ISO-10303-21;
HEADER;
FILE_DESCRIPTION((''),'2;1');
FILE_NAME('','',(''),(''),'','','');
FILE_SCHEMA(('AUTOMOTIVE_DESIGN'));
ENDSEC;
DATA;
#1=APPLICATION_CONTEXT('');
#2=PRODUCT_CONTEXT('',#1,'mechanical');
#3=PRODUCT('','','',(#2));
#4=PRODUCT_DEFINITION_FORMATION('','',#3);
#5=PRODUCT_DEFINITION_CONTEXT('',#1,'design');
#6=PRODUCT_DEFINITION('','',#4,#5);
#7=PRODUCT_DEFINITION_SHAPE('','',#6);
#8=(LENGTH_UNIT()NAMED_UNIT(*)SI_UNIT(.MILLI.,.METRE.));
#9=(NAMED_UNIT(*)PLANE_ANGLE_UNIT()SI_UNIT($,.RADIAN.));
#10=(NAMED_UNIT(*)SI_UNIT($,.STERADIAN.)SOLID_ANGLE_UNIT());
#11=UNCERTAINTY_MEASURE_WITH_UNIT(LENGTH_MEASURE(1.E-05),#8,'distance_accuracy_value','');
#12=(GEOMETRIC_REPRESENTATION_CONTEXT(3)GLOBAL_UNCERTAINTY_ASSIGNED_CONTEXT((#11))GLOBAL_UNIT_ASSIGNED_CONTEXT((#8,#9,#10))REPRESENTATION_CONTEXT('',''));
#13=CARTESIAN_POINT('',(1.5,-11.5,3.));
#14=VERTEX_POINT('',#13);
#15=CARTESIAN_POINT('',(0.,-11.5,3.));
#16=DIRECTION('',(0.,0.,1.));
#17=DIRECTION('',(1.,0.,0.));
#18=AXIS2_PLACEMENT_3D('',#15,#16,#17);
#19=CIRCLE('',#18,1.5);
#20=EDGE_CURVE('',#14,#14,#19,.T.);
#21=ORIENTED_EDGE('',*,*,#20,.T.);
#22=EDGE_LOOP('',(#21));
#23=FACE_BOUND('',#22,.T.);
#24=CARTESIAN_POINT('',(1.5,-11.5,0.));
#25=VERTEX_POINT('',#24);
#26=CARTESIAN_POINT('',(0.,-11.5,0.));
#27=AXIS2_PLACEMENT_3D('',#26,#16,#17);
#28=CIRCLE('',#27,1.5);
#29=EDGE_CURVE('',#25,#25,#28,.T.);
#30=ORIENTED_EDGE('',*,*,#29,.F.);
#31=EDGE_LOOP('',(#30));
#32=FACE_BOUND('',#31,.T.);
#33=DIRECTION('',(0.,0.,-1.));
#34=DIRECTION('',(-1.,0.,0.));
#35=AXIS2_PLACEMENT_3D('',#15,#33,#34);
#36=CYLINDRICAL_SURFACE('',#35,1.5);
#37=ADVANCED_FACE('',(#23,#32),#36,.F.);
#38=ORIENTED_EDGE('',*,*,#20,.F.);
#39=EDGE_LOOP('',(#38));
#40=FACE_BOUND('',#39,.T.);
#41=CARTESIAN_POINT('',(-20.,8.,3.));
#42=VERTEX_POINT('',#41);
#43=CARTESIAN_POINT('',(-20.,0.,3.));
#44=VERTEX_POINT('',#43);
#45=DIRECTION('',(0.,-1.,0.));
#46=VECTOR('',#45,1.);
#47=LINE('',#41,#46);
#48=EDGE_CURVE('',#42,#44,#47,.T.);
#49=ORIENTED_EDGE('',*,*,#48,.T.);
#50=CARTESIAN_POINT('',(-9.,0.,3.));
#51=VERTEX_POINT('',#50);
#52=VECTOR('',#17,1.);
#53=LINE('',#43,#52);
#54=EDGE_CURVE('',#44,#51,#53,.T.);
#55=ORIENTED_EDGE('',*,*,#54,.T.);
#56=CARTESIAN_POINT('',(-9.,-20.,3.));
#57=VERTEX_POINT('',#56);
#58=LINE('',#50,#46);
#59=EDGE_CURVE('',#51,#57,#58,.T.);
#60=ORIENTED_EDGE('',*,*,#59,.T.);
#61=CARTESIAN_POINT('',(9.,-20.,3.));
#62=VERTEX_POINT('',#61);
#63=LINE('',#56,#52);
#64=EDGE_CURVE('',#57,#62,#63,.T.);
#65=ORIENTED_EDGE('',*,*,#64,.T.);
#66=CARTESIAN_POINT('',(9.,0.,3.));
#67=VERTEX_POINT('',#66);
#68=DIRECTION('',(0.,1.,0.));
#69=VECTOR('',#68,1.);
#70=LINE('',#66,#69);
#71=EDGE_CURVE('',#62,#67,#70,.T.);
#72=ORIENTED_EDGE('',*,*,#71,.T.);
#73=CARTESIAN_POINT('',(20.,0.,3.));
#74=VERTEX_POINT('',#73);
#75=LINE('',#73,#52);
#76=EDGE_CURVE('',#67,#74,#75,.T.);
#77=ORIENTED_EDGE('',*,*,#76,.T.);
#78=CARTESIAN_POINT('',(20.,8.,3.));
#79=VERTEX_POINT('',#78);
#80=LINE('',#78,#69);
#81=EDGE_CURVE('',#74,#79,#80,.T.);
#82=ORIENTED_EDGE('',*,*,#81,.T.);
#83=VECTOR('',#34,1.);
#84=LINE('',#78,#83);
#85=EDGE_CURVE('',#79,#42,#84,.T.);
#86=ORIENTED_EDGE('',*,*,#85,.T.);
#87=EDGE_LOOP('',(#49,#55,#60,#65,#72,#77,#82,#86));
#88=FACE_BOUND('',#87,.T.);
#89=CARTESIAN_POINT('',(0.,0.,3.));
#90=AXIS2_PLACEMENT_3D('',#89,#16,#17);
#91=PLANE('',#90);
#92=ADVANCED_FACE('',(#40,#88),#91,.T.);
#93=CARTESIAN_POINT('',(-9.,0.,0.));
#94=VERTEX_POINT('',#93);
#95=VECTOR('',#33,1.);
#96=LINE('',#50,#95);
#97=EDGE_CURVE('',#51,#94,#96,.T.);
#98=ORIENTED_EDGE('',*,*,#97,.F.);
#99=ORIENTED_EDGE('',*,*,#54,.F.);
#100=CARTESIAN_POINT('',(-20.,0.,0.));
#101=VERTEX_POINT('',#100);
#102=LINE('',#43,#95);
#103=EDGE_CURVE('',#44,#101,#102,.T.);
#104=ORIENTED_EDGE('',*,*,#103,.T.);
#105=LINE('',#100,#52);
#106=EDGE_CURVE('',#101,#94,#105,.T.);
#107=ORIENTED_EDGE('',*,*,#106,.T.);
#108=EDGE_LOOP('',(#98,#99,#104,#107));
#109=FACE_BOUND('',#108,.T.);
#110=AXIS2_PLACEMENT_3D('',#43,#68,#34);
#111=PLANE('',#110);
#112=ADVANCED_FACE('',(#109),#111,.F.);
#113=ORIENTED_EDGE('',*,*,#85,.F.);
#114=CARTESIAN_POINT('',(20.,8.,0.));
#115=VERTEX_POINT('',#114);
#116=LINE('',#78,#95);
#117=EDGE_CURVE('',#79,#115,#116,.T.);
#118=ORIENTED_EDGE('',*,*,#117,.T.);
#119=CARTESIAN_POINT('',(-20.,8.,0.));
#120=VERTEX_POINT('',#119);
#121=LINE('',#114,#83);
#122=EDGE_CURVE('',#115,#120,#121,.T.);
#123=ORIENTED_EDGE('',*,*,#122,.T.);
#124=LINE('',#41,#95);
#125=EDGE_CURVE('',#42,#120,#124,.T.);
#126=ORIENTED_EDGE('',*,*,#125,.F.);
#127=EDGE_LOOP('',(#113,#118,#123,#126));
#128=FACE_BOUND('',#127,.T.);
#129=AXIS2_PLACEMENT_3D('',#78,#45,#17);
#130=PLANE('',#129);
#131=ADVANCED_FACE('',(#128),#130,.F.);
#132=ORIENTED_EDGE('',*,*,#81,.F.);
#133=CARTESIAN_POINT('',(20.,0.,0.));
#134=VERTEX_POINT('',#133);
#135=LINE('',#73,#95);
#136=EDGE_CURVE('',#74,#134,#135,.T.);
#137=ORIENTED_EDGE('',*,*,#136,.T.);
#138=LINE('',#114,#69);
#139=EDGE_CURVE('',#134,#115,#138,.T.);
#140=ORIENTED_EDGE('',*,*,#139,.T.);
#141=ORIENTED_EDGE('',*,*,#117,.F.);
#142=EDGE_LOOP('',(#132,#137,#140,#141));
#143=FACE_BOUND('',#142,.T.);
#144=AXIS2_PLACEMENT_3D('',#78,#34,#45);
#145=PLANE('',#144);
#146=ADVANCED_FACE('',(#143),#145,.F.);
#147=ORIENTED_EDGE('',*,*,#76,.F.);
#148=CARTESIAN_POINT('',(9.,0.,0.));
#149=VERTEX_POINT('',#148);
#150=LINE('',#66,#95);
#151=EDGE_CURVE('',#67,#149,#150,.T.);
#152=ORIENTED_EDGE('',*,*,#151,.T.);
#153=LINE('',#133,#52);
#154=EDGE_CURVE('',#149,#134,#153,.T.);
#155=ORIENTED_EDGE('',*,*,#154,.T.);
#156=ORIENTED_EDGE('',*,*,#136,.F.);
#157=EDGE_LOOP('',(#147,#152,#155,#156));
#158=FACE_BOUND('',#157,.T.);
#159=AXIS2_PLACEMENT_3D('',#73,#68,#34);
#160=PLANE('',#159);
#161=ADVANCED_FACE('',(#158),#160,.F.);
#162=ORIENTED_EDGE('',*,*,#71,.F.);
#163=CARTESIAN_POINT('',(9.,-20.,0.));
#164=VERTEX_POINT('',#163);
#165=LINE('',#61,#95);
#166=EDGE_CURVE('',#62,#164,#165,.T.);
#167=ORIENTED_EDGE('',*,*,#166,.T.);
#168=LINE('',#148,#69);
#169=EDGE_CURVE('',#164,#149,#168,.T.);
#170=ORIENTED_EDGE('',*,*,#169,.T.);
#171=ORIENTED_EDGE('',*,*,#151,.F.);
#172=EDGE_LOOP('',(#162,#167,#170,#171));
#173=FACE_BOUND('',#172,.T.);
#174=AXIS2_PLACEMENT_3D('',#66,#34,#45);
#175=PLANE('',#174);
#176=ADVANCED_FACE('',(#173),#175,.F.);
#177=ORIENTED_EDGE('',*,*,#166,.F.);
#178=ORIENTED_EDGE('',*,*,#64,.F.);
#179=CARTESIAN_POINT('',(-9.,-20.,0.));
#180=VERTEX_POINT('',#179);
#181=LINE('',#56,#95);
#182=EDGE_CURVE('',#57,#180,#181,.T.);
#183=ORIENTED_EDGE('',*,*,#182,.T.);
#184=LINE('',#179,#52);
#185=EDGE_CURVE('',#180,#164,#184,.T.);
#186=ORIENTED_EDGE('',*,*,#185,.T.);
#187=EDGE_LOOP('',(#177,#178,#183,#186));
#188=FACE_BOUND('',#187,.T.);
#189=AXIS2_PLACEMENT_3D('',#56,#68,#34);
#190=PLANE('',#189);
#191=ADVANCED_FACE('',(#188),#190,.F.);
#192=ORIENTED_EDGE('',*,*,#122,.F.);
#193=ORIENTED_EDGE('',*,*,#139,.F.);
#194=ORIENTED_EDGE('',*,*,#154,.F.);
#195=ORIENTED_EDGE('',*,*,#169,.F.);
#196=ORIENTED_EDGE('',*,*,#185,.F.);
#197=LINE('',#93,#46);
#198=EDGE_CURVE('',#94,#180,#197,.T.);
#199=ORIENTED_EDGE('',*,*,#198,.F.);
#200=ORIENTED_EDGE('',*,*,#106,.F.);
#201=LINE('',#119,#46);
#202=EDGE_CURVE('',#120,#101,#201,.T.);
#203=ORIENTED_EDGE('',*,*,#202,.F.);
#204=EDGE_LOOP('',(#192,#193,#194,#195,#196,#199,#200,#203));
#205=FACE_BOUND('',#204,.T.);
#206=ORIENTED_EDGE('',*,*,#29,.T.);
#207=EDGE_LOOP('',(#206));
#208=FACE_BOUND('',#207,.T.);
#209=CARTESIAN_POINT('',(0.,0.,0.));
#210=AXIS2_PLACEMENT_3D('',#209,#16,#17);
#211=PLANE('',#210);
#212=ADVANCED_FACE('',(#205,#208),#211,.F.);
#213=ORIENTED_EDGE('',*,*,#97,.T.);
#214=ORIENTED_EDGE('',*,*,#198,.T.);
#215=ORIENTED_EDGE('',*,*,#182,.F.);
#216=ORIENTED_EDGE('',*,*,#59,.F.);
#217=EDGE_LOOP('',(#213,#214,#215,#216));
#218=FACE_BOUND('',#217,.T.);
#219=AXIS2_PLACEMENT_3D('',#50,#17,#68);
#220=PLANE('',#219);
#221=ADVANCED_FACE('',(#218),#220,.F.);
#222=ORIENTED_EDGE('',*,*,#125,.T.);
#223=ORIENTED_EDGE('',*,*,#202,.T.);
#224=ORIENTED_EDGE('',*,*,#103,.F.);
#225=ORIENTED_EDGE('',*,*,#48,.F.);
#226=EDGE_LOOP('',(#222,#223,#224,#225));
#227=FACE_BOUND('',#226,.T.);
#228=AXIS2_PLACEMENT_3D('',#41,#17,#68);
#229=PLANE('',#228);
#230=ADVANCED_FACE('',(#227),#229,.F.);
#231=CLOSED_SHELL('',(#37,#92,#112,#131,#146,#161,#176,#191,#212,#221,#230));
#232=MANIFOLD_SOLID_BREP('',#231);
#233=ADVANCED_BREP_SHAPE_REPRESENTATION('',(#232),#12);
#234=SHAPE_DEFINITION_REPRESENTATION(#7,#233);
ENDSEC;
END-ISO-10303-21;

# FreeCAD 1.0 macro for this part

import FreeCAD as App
import Part
import Sketcher

V = App.Vector

doc = App.newDocument("Part")
body = doc.addObject("PartDesign::Body", "Body")

# Sketch on XY plane
sketch1 = doc.addObject("Sketcher::SketchObject", "Sketch")
body.addObject(sketch1)
sketch1.AttachmentSupport = (doc.XY_Plane, [""])
sketch1.MapMode = "FlatFace"
sketch1.addGeometry([
    Part.LineSegment(V(20, 8, 0), V(-20, 8, 0)),  # 0
    Part.LineSegment(V(-20, 8, 0), V(-20, 0, 0)),  # 1
    Part.LineSegment(V(-20, 0, 0), V(-9, 0, 0)),  # 2
    Part.LineSegment(V(-9, 0, 0), V(-9, -20, 0)),  # 3
    Part.LineSegment(V(-9, -20, 0), V(9, -20, 0)),  # 4
    Part.LineSegment(V(9, -20, 0), V(9, 0, 0)),  # 5
    Part.LineSegment(V(9, 0, 0), V(20, 0, 0)),  # 6
    Part.LineSegment(V(20, 0, 0), V(20, 8, 0)),  # 7
    Part.Circle(V(0, -11.5, 0), V(0, 0, 1), 1.5),  # 8
], False)
sketch1.addConstraint([
    Sketcher.Constraint("Coincident", 0, 2, 1, 1),
    Sketcher.Constraint("Coincident", 1, 2, 2, 1),
    Sketcher.Constraint("Coincident", 2, 2, 3, 1),
    Sketcher.Constraint("Coincident", 3, 2, 4, 1),
    Sketcher.Constraint("Coincident", 4, 2, 5, 1),
    Sketcher.Constraint("Coincident", 5, 2, 6, 1),
    Sketcher.Constraint("Coincident", 6, 2, 7, 1),
    Sketcher.Constraint("Coincident", 7, 2, 0, 1),
    Sketcher.Constraint("Horizontal", 0),
    Sketcher.Constraint("Vertical", 1),
    Sketcher.Constraint("Horizontal", 2),
    Sketcher.Constraint("Vertical", 3),
    Sketcher.Constraint("Horizontal", 4),
    Sketcher.Constraint("Vertical", 5),
    Sketcher.Constraint("Horizontal", 6),
    Sketcher.Constraint("Vertical", 7),
    Sketcher.Constraint("Symmetric", 2, 2, 5, 2, -1, 1),
    Sketcher.Constraint("Symmetric", 1, 2, 6, 2, -2),
    Sketcher.Constraint("PointOnObject", 8, 3, -2),
    Sketcher.Constraint("Diameter", 8, 3.0),
    Sketcher.Constraint("DistanceX", 0, 2, 0, 1, 40.0),
    Sketcher.Constraint("DistanceX", 2, 1, 2, 2, 11.0),
    Sketcher.Constraint("DistanceY", 1, 2, 1, 1, 8.0),
    Sketcher.Constraint("DistanceY", 3, 2, 3, 1, 20.0),
    Sketcher.Constraint("DistanceY", 8, 3, -1, 1, 11.5),
])
pad1 = doc.addObject("PartDesign::Pad", "Pad")
body.addObject(pad1)
pad1.Profile = sketch1
pad1.Length = 3

doc.recompute()
